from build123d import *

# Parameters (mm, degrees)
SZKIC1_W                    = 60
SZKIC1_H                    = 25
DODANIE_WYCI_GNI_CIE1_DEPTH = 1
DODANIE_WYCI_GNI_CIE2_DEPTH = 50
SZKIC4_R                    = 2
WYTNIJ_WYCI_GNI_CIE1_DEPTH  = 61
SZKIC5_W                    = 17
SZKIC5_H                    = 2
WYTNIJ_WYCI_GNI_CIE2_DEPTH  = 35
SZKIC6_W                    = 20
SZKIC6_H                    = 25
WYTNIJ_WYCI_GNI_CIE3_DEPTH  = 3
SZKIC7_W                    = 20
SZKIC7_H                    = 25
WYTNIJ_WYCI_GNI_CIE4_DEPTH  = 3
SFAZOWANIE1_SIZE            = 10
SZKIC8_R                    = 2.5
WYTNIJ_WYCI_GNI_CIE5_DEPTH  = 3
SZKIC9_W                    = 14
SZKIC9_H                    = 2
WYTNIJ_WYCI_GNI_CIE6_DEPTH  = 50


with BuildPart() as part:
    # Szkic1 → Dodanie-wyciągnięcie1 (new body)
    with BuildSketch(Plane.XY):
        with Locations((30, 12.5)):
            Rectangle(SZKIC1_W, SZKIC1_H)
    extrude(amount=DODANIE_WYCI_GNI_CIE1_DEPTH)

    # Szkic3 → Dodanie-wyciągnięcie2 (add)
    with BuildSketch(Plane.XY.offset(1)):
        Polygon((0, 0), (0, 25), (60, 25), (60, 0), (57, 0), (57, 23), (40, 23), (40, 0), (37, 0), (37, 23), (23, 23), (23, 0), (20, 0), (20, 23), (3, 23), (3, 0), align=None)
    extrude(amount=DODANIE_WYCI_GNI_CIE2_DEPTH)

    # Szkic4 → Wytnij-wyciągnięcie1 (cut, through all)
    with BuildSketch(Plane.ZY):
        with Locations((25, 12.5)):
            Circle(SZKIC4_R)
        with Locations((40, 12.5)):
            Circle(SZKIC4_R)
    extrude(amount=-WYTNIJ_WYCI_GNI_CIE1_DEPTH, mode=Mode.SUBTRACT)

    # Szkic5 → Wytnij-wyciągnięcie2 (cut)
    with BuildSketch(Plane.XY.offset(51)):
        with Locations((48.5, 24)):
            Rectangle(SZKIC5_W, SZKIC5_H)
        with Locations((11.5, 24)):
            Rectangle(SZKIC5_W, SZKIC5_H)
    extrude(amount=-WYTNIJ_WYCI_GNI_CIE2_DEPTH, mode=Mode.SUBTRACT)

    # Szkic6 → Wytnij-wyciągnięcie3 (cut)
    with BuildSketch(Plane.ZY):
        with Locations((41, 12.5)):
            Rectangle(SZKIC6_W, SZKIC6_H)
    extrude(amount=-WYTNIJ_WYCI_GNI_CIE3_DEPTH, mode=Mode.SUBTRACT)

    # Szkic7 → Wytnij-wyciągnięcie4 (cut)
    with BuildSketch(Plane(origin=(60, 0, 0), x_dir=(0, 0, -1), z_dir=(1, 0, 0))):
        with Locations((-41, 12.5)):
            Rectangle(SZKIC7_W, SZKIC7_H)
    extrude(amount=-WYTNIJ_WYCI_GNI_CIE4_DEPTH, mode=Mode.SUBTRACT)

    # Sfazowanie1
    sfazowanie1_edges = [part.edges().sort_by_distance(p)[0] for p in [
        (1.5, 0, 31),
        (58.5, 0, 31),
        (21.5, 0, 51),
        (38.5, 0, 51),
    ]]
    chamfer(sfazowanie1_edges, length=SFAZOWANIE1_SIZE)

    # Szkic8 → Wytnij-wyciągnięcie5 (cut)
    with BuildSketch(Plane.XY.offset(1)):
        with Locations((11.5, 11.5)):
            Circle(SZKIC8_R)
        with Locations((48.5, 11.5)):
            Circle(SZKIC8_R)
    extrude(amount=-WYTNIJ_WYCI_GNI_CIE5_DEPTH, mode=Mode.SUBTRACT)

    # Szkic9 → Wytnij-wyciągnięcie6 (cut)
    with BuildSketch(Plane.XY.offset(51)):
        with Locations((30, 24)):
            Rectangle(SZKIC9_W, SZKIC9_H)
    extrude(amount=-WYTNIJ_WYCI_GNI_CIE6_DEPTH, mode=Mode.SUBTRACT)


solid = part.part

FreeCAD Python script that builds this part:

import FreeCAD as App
import Part
import Sketcher

V = App.Vector
Q = App.Units.Quantity


def edges_at(feature, points):
    """Names of the edges that pass closest to the given points."""
    edges = feature.Shape.Edges
    near = lambda p: min(range(len(edges)), key=lambda i: edges[i].distToShape(Part.Vertex(*p))[0])
    return sorted({f"Edge{near(p) + 1}" for p in points})


def add_polygon(sketch, points):
    """Adds a closed chain of lines whose ends are joined by coincident constraints."""
    first, n = sketch.GeometryCount, len(points)
    for a, b in zip(points, points[1:] + points[:1]):
        sketch.addGeometry(Part.LineSegment(App.Vector(*a, 0), App.Vector(*b, 0)), False)
    for i in range(n):
        sketch.addConstraint(Sketcher.Constraint("Coincident", first + i, 2, first + (i + 1) % n, 1))

doc = App.newDocument("Part")
body = doc.addObject("PartDesign::Body", "Body")

sketch1 = doc.addObject("Sketcher::SketchObject", "Sketch")
body.addObject(sketch1)
sketch1.AttachmentSupport = (doc.XY_Plane, [""])
sketch1.MapMode = "FlatFace"
add_polygon(sketch1, [(0, 25), (0, 0), (60, 0), (60, 25)])
sketch1.addConstraint([
    Sketcher.Constraint("Vertical", 0),
    Sketcher.Constraint("Horizontal", 1),
    Sketcher.Constraint("Vertical", 2),
    Sketcher.Constraint("Horizontal", 3),
    Sketcher.Constraint("Coincident", 0, 2, -1, 1),
    Sketcher.Constraint("DistanceX", 1, 1, 1, 2, Q("60 mm")),
    Sketcher.Constraint("DistanceY", 0, 2, 0, 1, Q("25 mm")),
])
pad1 = doc.addObject("PartDesign::Pad", "Pad")
body.addObject(pad1)
pad1.Profile = sketch1
pad1.Length = 1

sketch2 = doc.addObject("Sketcher::SketchObject", "Sketch001")
body.addObject(sketch2)
sketch2.AttachmentSupport = (doc.XY_Plane, [""])
sketch2.MapMode = "FlatFace"
sketch2.AttachmentOffset = App.Placement(V(0, 0, 1), App.Rotation())
add_polygon(sketch2, [(0, 25), (0, 0), (3, 0), (3, 23), (20, 23), (20, 0), (23, 0), (23, 23), (37, 23), (37, 0), (40, 0), (40, 23), (57, 23), (57, 0), (60, 0), (60, 25)])
sketch2.addConstraint([
    Sketcher.Constraint("Vertical", 0),
    Sketcher.Constraint("Horizontal", 1),
    Sketcher.Constraint("Vertical", 2),
    Sketcher.Constraint("Horizontal", 3),
    Sketcher.Constraint("Vertical", 4),
    Sketcher.Constraint("Horizontal", 5),
    Sketcher.Constraint("Vertical", 6),
    Sketcher.Constraint("Horizontal", 7),
    Sketcher.Constraint("Vertical", 8),
    Sketcher.Constraint("Horizontal", 9),
    Sketcher.Constraint("Vertical", 10),
    Sketcher.Constraint("Horizontal", 11),
    Sketcher.Constraint("Vertical", 12),
    Sketcher.Constraint("Horizontal", 13),
    Sketcher.Constraint("Vertical", 14),
    Sketcher.Constraint("Horizontal", 15),
    Sketcher.Constraint("Coincident", 0, 2, -1, 1),
    Sketcher.Constraint("PointOnObject", 4, 2, -1),
    Sketcher.Constraint("PointOnObject", 8, 2, -1),
    Sketcher.Constraint("PointOnObject", 12, 2, -1),
    Sketcher.Constraint("Horizontal", 3, 2, 6, 2),
    Sketcher.Constraint("Horizontal", 7, 2, 10, 2),
    Sketcher.Constraint("Equal", 1, 5),
    Sketcher.Constraint("Equal", 5, 9),
    Sketcher.Constraint("Equal", 3, 11),
    Sketcher.Constraint("Equal", 9, 13),
    Sketcher.Constraint("DistanceX", 1, 1, 1, 2, Q("3 mm")),
    Sketcher.Constraint("DistanceX", 3, 1, 3, 2, Q("17 mm")),
    Sketcher.Constraint("DistanceX", 7, 1, 7, 2, Q("14 mm")),
    Sketcher.Constraint("DistanceY", 0, 2, 0, 1, Q("25 mm")),
    Sketcher.Constraint("DistanceY", 2, 1, 2, 2, Q("23 mm")),
])
pad2 = doc.addObject("PartDesign::Pad", "Pad001")
body.addObject(pad2)
pad2.Profile = sketch2
pad2.Length = 50

sketch3 = doc.addObject("Sketcher::SketchObject", "Sketch002")
body.addObject(sketch3)
sketch3.AttachmentSupport = (doc.YZ_Plane, [""])
sketch3.MapMode = "FlatFace"
sketch3.addGeometry([
    Part.Circle(V(12.5, 25, 0), V(0, 0, 1), 2),
    Part.Circle(V(12.5, 40, 0), V(0, 0, 1), 2),
], False)
sketch3.addConstraint([
    Sketcher.Constraint("Equal", 0, 1),
    Sketcher.Constraint("Vertical", 0, 3, 1, 3),
    Sketcher.Constraint("Diameter", 0, Q("4 mm")),
    Sketcher.Constraint("DistanceY", -1, 1, 0, 3, Q("25 mm")),
    Sketcher.Constraint("DistanceY", -1, 1, 1, 3, Q("40 mm")),
    Sketcher.Constraint("DistanceX", -1, 1, 0, 3, Q("12.5 mm")),
])
pocket1 = doc.addObject("PartDesign::Pocket", "Pocket")
body.addObject(pocket1)
pocket1.Profile = sketch3
pocket1.Type = "ThroughAll"
pocket1.Reversed = True

sketch4 = doc.addObject("Sketcher::SketchObject", "Sketch003")
body.addObject(sketch4)
sketch4.AttachmentSupport = (doc.XY_Plane, [""])
sketch4.MapMode = "FlatFace"
sketch4.AttachmentOffset = App.Placement(V(0, 0, 51), App.Rotation())
add_polygon(sketch4, [(40, 25), (40, 23), (57, 23), (57, 25)])
add_polygon(sketch4, [(3, 25), (3, 23), (20, 23), (20, 25)])
sketch4.addConstraint([
    Sketcher.Constraint("Vertical", 0),
    Sketcher.Constraint("Horizontal", 1),
    Sketcher.Constraint("Vertical", 2),
    Sketcher.Constraint("Horizontal", 3),
    Sketcher.Constraint("Vertical", 4),
    Sketcher.Constraint("Horizontal", 5),
    Sketcher.Constraint("Vertical", 6),
    Sketcher.Constraint("Horizontal", 7),
    Sketcher.Constraint("Horizontal", 1, 2, 4, 2),
    Sketcher.Constraint("Horizontal", 3, 2, 6, 2),
    Sketcher.Constraint("Equal", 3, 5),
    Sketcher.Constraint("DistanceX", 1, 1, 1, 2, Q("17 mm")),
    Sketcher.Constraint("DistanceY", 0, 2, 0, 1, Q("2 mm")),
    Sketcher.Constraint("DistanceX", -1, 1, 0, 2, Q("40 mm")),
    Sketcher.Constraint("DistanceY", -1, 1, 0, 2, Q("23 mm")),
    Sketcher.Constraint("DistanceX", -1, 1, 4, 2, Q("3 mm")),
])
pocket2 = doc.addObject("PartDesign::Pocket", "Pocket001")
body.addObject(pocket2)
pocket2.Profile = sketch4
pocket2.Length = 35

sketch5 = doc.addObject("Sketcher::SketchObject", "Sketch004")
body.addObject(sketch5)
sketch5.AttachmentSupport = (doc.YZ_Plane, [""])
sketch5.MapMode = "FlatFace"
add_polygon(sketch5, [(25, 31), (0, 31), (0, 51), (25, 51)])
sketch5.addConstraint([
    Sketcher.Constraint("Horizontal", 0),
    Sketcher.Constraint("Vertical", 1),
    Sketcher.Constraint("Horizontal", 2),
    Sketcher.Constraint("Vertical", 3),
    Sketcher.Constraint("PointOnObject", 0, 2, -2),
    Sketcher.Constraint("DistanceX", 0, 2, 0, 1, Q("25 mm")),
    Sketcher.Constraint("DistanceY", 1, 1, 1, 2, Q("20 mm")),
    Sketcher.Constraint("DistanceY", -1, 1, 0, 2, Q("31 mm")),
])
pocket3 = doc.addObject("PartDesign::Pocket", "Pocket002")
body.addObject(pocket3)
pocket3.Profile = sketch5
pocket3.Length = 3
pocket3.Reversed = True

sketch6 = doc.addObject("Sketcher::SketchObject", "Sketch005")
body.addObject(sketch6)
sketch6.AttachmentSupport = (doc.YZ_Plane, [""])
sketch6.MapMode = "FlatFace"
sketch6.AttachmentOffset = App.Placement(V(0, 0, 60), App.Rotation())
add_polygon(sketch6, [(25, 51), (0, 51), (0, 31), (25, 31)])
sketch6.addConstraint([
    Sketcher.Constraint("Horizontal", 0),
    Sketcher.Constraint("Vertical", 1),
    Sketcher.Constraint("Horizontal", 2),
    Sketcher.Constraint("Vertical", 3),
    Sketcher.Constraint("PointOnObject", 0, 2, -2),
    Sketcher.Constraint("DistanceX", 0, 2, 0, 1, Q("25 mm")),
    Sketcher.Constraint("DistanceY", 1, 2, 1, 1, Q("20 mm")),
    Sketcher.Constraint("DistanceY", -1, 1, 0, 2, Q("51 mm")),
])
pocket4 = doc.addObject("PartDesign::Pocket", "Pocket003")
body.addObject(pocket4)
pocket4.Profile = sketch6
pocket4.Length = 3
doc.recompute()

chamfer = doc.addObject("PartDesign::Chamfer", "Chamfer")
body.addObject(chamfer)
chamfer.Base = (pocket4, edges_at(pocket4, [
    (1.5, 0, 31),
    (58.5, 0, 31),
    (21.5, 0, 51),
    (38.5, 0, 51),
]))
chamfer.Size = 10

sketch7 = doc.addObject("Sketcher::SketchObject", "Sketch006")
body.addObject(sketch7)
sketch7.AttachmentSupport = (doc.XY_Plane, [""])
sketch7.MapMode = "FlatFace"
sketch7.AttachmentOffset = App.Placement(V(0, 0, 1), App.Rotation())
sketch7.addGeometry([
    Part.Circle(V(11.5, 11.5, 0), V(0, 0, 1), 2.5),
    Part.Circle(V(48.5, 11.5, 0), V(0, 0, 1), 2.5),
], False)
sketch7.addConstraint([
    Sketcher.Constraint("Equal", 0, 1),
    Sketcher.Constraint("Horizontal", 0, 3, 1, 3),
    Sketcher.Constraint("Diameter", 0, Q("5 mm")),
    Sketcher.Constraint("DistanceX", 0, 3, 1, 3, Q("37 mm")),
    Sketcher.Constraint("DistanceX", -1, 1, 0, 3, Q("11.5 mm")),
    Sketcher.Constraint("DistanceY", -1, 1, 0, 3, Q("11.5 mm")),
])
pocket5 = doc.addObject("PartDesign::Pocket", "Pocket004")
body.addObject(pocket5)
pocket5.Profile = sketch7
pocket5.Length = 3

sketch8 = doc.addObject("Sketcher::SketchObject", "Sketch007")
body.addObject(sketch8)
sketch8.AttachmentSupport = (doc.XY_Plane, [""])
sketch8.MapMode = "FlatFace"
sketch8.AttachmentOffset = App.Placement(V(0, 0, 51), App.Rotation())
add_polygon(sketch8, [(23, 25), (23, 23), (37, 23), (37, 25)])
sketch8.addConstraint([
    Sketcher.Constraint("Vertical", 0),
    Sketcher.Constraint("Horizontal", 1),
    Sketcher.Constraint("Vertical", 2),
    Sketcher.Constraint("Horizontal", 3),
    Sketcher.Constraint("DistanceX", 1, 1, 1, 2, Q("14 mm")),
    Sketcher.Constraint("DistanceY", 0, 2, 0, 1, Q("2 mm")),
    Sketcher.Constraint("DistanceX", -1, 1, 0, 2, Q("23 mm")),
    Sketcher.Constraint("DistanceY", -1, 1, 0, 2, Q("23 mm")),
])
pocket6 = doc.addObject("PartDesign::Pocket", "Pocket005")
body.addObject(pocket6)
pocket6.Profile = sketch8
pocket6.Length = 50

doc.recompute()
